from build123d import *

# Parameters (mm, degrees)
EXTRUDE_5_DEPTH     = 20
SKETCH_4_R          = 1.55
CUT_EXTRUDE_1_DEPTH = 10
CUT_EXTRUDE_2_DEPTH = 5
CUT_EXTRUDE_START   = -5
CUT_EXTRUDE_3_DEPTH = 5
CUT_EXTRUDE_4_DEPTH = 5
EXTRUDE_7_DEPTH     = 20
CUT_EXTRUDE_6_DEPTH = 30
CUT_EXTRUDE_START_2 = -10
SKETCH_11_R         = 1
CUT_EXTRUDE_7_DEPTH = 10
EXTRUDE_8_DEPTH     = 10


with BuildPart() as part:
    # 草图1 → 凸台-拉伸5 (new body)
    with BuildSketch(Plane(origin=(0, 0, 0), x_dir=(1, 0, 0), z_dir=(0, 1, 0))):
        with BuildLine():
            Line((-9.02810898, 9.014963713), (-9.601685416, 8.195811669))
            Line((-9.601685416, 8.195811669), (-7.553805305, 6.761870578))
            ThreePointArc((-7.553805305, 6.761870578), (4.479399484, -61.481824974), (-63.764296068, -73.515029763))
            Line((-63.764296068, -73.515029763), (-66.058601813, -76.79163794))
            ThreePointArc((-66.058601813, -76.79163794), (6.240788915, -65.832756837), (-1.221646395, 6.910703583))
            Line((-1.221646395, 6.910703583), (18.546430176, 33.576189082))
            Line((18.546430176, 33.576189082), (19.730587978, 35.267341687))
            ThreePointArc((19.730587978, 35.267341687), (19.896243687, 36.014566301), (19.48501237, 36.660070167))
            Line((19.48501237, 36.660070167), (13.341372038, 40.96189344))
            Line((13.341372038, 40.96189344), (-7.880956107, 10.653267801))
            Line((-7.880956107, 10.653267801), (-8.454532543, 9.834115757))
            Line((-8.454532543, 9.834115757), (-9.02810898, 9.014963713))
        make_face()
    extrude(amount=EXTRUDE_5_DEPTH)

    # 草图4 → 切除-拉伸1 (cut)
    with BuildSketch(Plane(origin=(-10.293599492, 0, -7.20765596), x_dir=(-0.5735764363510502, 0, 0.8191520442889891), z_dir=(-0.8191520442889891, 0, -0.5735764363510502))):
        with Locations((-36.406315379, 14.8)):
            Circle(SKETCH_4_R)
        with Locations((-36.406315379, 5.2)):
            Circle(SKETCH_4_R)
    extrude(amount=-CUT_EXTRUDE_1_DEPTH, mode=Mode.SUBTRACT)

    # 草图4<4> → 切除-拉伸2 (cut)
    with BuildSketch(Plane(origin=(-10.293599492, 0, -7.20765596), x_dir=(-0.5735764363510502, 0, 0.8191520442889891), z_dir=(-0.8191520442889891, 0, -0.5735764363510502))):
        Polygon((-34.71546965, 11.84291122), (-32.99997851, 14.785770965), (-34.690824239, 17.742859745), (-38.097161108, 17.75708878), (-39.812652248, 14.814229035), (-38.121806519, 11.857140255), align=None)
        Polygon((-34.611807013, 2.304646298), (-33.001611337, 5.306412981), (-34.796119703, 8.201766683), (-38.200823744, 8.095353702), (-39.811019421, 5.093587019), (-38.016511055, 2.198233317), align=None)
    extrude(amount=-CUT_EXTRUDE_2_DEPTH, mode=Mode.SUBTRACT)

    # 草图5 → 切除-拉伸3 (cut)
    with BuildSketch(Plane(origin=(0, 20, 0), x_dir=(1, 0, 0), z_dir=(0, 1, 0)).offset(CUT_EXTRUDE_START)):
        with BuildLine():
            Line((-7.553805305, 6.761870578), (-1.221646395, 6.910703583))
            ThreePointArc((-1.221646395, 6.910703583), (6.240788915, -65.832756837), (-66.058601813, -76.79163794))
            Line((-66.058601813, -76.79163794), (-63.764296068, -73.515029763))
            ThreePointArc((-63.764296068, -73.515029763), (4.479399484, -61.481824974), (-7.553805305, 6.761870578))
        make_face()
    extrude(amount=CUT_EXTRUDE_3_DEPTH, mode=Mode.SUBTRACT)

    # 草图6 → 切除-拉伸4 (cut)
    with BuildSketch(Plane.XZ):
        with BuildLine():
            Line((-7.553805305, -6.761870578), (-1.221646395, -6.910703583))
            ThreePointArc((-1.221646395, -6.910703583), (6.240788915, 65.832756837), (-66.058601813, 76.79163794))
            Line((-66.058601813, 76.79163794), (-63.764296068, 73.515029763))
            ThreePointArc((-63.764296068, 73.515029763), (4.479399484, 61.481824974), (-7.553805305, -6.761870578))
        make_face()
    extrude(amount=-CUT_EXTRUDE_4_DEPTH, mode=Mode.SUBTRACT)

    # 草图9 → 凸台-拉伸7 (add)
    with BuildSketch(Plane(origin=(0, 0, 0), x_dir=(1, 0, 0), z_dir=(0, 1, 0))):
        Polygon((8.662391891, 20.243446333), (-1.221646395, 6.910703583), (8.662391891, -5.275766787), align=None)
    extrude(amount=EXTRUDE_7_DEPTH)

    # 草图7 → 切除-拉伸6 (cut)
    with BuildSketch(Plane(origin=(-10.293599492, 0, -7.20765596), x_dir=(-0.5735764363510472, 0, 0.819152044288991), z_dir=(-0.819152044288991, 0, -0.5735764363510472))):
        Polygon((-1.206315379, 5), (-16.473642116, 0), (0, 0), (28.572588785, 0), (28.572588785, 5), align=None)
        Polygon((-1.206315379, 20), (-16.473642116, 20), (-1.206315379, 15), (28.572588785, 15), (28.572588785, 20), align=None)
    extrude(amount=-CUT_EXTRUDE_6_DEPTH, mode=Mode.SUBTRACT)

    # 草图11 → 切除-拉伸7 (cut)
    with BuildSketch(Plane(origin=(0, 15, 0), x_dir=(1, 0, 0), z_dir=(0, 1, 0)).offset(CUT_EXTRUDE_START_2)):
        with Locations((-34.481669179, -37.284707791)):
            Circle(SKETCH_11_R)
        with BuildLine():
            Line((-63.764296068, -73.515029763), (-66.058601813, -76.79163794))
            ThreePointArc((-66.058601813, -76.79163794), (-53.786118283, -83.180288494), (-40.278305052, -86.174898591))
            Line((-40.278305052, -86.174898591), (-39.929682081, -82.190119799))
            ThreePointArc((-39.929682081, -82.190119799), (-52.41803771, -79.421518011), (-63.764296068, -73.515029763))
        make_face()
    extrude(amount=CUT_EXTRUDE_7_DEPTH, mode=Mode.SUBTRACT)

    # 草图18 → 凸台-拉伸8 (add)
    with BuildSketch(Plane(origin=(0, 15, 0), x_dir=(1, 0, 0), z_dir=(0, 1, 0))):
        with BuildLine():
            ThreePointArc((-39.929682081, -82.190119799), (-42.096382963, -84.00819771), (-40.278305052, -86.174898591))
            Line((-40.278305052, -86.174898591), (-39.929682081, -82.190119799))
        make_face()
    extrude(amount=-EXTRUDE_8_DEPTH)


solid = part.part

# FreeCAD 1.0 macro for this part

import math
import FreeCAD as App
import Part
import Sketcher
Q = App.Units.Quantity


def add_polygon(sketch, points):
    """Adds a closed chain of lines whose ends are joined by coincident constraints."""
    first, n = sketch.GeometryCount, len(points)
    for a, b in zip(points, points[1:] + points[:1]):
        sketch.addGeometry(Part.LineSegment(App.Vector(*a, 0), App.Vector(*b, 0)), False)
    for i in range(n):
        sketch.addConstraint(Sketcher.Constraint("Coincident", first + i, 2, first + (i + 1) % n, 1))

doc = App.newDocument("Part")
body = doc.addObject("PartDesign::Body", "Body")

# Sketch on XZ plane
sketch1 = body.newObject("Sketcher::SketchObject", "Sketch")
sketch1.AttachmentSupport = (doc.getObject("XZ_Plane"), [""])
sketch1.MapMode = "FlatFace"
sketch1.addGeometry([
    Part.LineSegment(App.Vector(-9.028109, -9.014964, 0), App.Vector(-9.601685, -8.195812, 0)),  # 0
    Part.LineSegment(App.Vector(-9.601685, -8.195812, 0), App.Vector(-7.553805, -6.761871, 0)),  # 1
    Part.ArcOfCircle(Part.Circle(App.Vector(-35.659051, 33.37658, 0), App.Vector(0, 0, 1), 49), math.radians(-55), math.radians(125)),  # 2
    Part.LineSegment(App.Vector(-63.764296, 73.51503, 0), App.Vector(-66.058602, 76.791638, 0)),  # 3
    Part.ArcOfCircle(Part.Circle(App.Vector(-35.659051, 33.37658, 0), App.Vector(0, 0, 1), 53), math.radians(-49.476314), math.radians(125)),  # 4
    Part.LineSegment(App.Vector(-1.221646, -6.910704, 0), App.Vector(18.54643, -33.576189, 0)),  # 5
    Part.LineSegment(App.Vector(18.54643, -33.576189, 0), App.Vector(19.730588, -35.267342, 0)),  # 6
    Part.ArcOfCircle(Part.Circle(App.Vector(18.911436, -35.840918, 0), App.Vector(0, 0, 1), 1), math.radians(-55), math.radians(35)),  # 7
    Part.LineSegment(App.Vector(19.485012, -36.66007, 0), App.Vector(13.341372, -40.961893, 0)),  # 8
    Part.LineSegment(App.Vector(13.341372, -40.961893, 0), App.Vector(-7.880956, -10.653268, 0)),  # 9
    Part.LineSegment(App.Vector(-7.880956, -10.653268, 0), App.Vector(-8.454533, -9.834116, 0)),  # 10
    Part.LineSegment(App.Vector(-8.454533, -9.834116, 0), App.Vector(-9.028109, -9.014964, 0)),  # 11
], False)
sketch1.addConstraint([
    Sketcher.Constraint("Coincident", 0, 2, 1, 1),
    Sketcher.Constraint("Tangent", 1, 2, 2, 1),
    Sketcher.Constraint("Coincident", 2, 2, 3, 1),
    Sketcher.Constraint("Coincident", 3, 2, 4, 2),
    Sketcher.Constraint("Coincident", 4, 1, 5, 1),
    Sketcher.Constraint("Coincident", 5, 2, 6, 1),
    Sketcher.Constraint("Tangent", 6, 2, 7, 2),
    Sketcher.Constraint("Tangent", 7, 1, 8, 1),
    Sketcher.Constraint("Coincident", 8, 2, 9, 1),
    Sketcher.Constraint("Coincident", 9, 2, 10, 1),
    Sketcher.Constraint("Coincident", 10, 2, 11, 1),
    Sketcher.Constraint("Coincident", 11, 2, 0, 1),
    Sketcher.Constraint("Coincident", 4, 3, 2, 3),
    Sketcher.Constraint("Perpendicular", 0, 1),
    Sketcher.Constraint("Perpendicular", 1, 3),
    Sketcher.Constraint("Parallel", 3, 6),
    Sketcher.Constraint("Perpendicular", 6, 8),
    Sketcher.Constraint("Perpendicular", 8, 9),
    Sketcher.Constraint("Parallel", 9, 10),
    Sketcher.Constraint("Parallel", 10, 11),
    Sketcher.Constraint("Equal", 0, 10),
    Sketcher.Constraint("Equal", 10, 11),
    Sketcher.Constraint("Radius", 2, 49.0),
    Sketcher.Constraint("Radius", 4, 53.0),
    Sketcher.Constraint("Radius", 7, 1.0),
    Sketcher.Constraint("Angle", 0, Q("125 deg")),
    Sketcher.Constraint("Distance", 0, 1.0),
    Sketcher.Constraint("Distance", 9, 37.0),
    Sketcher.Constraint("Distance", 1, 2.5),
    Sketcher.Constraint("Distance", 8, 7.5),
    Sketcher.Constraint("DistanceX", 3, 2, -1, 1, 66.058602),
    Sketcher.Constraint("DistanceY", 1, 2, 2, 2, 80.2769),
    Sketcher.Constraint("Distance", 5, 33.193749),
    Sketcher.Constraint("DistanceY", -1, 1, 2, 3, 33.37658),
    Sketcher.Constraint("DistanceX", -1, 1, 5, 2, 18.54643),
])
pad1 = body.newObject("PartDesign::Pad", "Pad")
pad1.Profile = sketch1
pad1.Length = 20
pad1.Reversed = True

# Sketch on an angled plane
sketch2 = body.newObject("Sketcher::SketchObject", "Sketch001")
sketch2.Placement = App.Placement(App.Vector(-10.293599, 0, -7.207656), App.Rotation(App.Vector(-0.573576436, 0, 0.819152044), App.Vector(0, 0.999999999, 0), App.Vector(-0.819152044, 0, -0.573576436), "ZXY"))
sketch2.addGeometry([
    Part.Circle(App.Vector(-36.406315, 14.8, 0), App.Vector(0, 0, 1), 1.55),
    Part.Circle(App.Vector(-36.406315, 5.2, 0), App.Vector(0, 0, 1), 1.55),
], False)
sketch2.addConstraint([
    Sketcher.Constraint("Equal", 0, 1),
    Sketcher.Constraint("Vertical", 0, 3, 1, 3),
    Sketcher.Constraint("Diameter", 0, 3.1),
    Sketcher.Constraint("DistanceY", -1, 1, 0, 3, 14.8),
    Sketcher.Constraint("DistanceY", -1, 1, 1, 3, 5.2),
    Sketcher.Constraint("DistanceX", 0, 3, -1, 1, 36.406315),
])
pocket1 = body.newObject("PartDesign::Pocket", "Pocket")
pocket1.Profile = sketch2
pocket1.Length = 10

# Sketch on an angled plane
sketch3 = body.newObject("Sketcher::SketchObject", "Sketch002")
sketch3.Placement = App.Placement(App.Vector(-10.293599, 0, -7.207656), App.Rotation(App.Vector(-0.573576436, 0, 0.819152044), App.Vector(0, 0.999999999, 0), App.Vector(-0.819152044, 0, -0.573576436), "ZXY"))
add_polygon(sketch3, [(-34.71547, 11.842911), (-32.999978, 14.785771), (-34.690824, 17.74286), (-38.097161, 17.757089), (-39.812652, 14.814229), (-38.121806, 11.85714)])  # lines 0-5
add_polygon(sketch3, [(-34.611807, 2.304646), (-33.001611, 5.306413), (-34.79612, 8.201767), (-38.200824, 8.095354), (-39.811019, 5.093587), (-38.016511, 2.198233)])  # lines 6-11
sketch3.addConstraint([
    Sketcher.Constraint("Parallel", 0, 3),
    Sketcher.Constraint("Parallel", 1, 4),
    Sketcher.Constraint("Parallel", 2, 5),
    Sketcher.Constraint("Parallel", 6, 9),
    Sketcher.Constraint("Parallel", 7, 10),
    Sketcher.Constraint("Parallel", 8, 11),
    Sketcher.Constraint("Equal", 0, 1),
    Sketcher.Constraint("Equal", 1, 2),
    Sketcher.Constraint("Equal", 2, 3),
    Sketcher.Constraint("Equal", 5, 6),
    Sketcher.Constraint("Equal", 6, 7),
    Sketcher.Constraint("Equal", 7, 8),
    Sketcher.Constraint("Equal", 8, 9),
    Sketcher.Constraint("DistanceY", 6, 2, 5, 2, 6.536498),
    Sketcher.Constraint("DistanceX", 9, 2, 7, 2, 5.0149),
    Sketcher.Constraint("DistanceX", 0, 2, -1, 1, 32.999978),
    Sketcher.Constraint("DistanceY", -1, 1, 0, 2, 14.785771),
    Sketcher.Constraint("DistanceY", -1, 1, 1, 2, 17.74286),
    Sketcher.Constraint("DistanceX", 2, 2, -1, 1, 38.097161),
    Sketcher.Constraint("DistanceY", -1, 1, 2, 2, 17.757089),
    Sketcher.Constraint("DistanceY", -1, 1, 3, 2, 14.814229),
    Sketcher.Constraint("DistanceX", 6, 2, -1, 1, 33.001611),
    Sketcher.Constraint("DistanceX", 7, 2, -1, 1, 34.79612),
    Sketcher.Constraint("DistanceY", 6, 2, 8, 2, 2.788941),
])
pocket2 = body.newObject("PartDesign::Pocket", "Pocket001")
pocket2.Profile = sketch3
pocket2.Length = 5

# Sketch on XZ plane
sketch4 = body.newObject("Sketcher::SketchObject", "Sketch003")
sketch4.AttachmentSupport = (doc.getObject("XZ_Plane"), [""])
sketch4.MapMode = "FlatFace"
sketch4.AttachmentOffset = App.Placement(App.Vector(0, 0, -15), App.Rotation())
sketch4.addGeometry([
    Part.LineSegment(App.Vector(-1.221646, -6.910704, 0), App.Vector(-7.553805, -6.761871, 0)),
    Part.ArcOfCircle(Part.Circle(App.Vector(-35.659051, 33.37658, 0), App.Vector(0, 0, 1), 49), math.radians(-55), math.radians(125)),
    Part.LineSegment(App.Vector(-63.764296, 73.51503, 0), App.Vector(-66.058602, 76.791638, 0)),
    Part.ArcOfCircle(Part.Circle(App.Vector(-35.659051, 33.37658, 0), App.Vector(0, 0, 1), 53), math.radians(-49.476314), math.radians(125)),
], False)
sketch4.addConstraint([
    Sketcher.Constraint("Coincident", 0, 2, 1, 1),
    Sketcher.Constraint("Coincident", 1, 2, 2, 1),
    Sketcher.Constraint("Coincident", 2, 2, 3, 2),
    Sketcher.Constraint("Coincident", 3, 1, 0, 1),
    Sketcher.Constraint("Coincident", 3, 3, 1, 3),
    Sketcher.Constraint("Radius", 1, 49.0),
    Sketcher.Constraint("Radius", 3, 53.0),
    Sketcher.Constraint("Angle", 2, Q("125 deg")),
    Sketcher.Constraint("DistanceX", 2, 2, -1, 1, 66.058602),
    Sketcher.Constraint("DistanceY", 0, 2, 1, 2, 80.2769),
    Sketcher.Constraint("DistanceX", 1, 3, -1, 1, 35.659051),
    Sketcher.Constraint("DistanceY", -1, 1, 1, 3, 33.37658),
    Sketcher.Constraint("DistanceX", 0, 2, 3, 1, 6.332159),
])
pocket3 = body.newObject("PartDesign::Pocket", "Pocket002")
pocket3.Profile = sketch4
pocket3.Length = 5

# Sketch on XZ plane
sketch5 = body.newObject("Sketcher::SketchObject", "Sketch004")
sketch5.AttachmentSupport = (doc.getObject("XZ_Plane"), [""])
sketch5.MapMode = "FlatFace"
sketch5.addGeometry([
    Part.LineSegment(App.Vector(-7.553805, -6.761871, 0), App.Vector(-1.221646, -6.910704, 0)),
    Part.ArcOfCircle(Part.Circle(App.Vector(-35.659051, 33.37658, 0), App.Vector(0, 0, 1), 53), math.radians(-49.476314), math.radians(125)),
    Part.LineSegment(App.Vector(-66.058602, 76.791638, 0), App.Vector(-63.764296, 73.51503, 0)),
    Part.ArcOfCircle(Part.Circle(App.Vector(-35.659051, 33.37658, 0), App.Vector(0, 0, 1), 49), math.radians(-55), math.radians(125)),
], False)
sketch5.addConstraint([
    Sketcher.Constraint("Coincident", 0, 2, 1, 1),
    Sketcher.Constraint("Coincident", 1, 2, 2, 1),
    Sketcher.Constraint("Coincident", 2, 2, 3, 2),
    Sketcher.Constraint("Coincident", 3, 1, 0, 1),
    Sketcher.Constraint("Coincident", 3, 3, 1, 3),
    Sketcher.Constraint("Radius", 1, 53.0),
    Sketcher.Constraint("Radius", 3, 49.0),
    Sketcher.Constraint("Angle", 2, Q("-55 deg")),
    Sketcher.Constraint("DistanceX", 1, 2, -1, 1, 66.058602),
    Sketcher.Constraint("DistanceY", 3, 1, 2, 2, 80.2769),
    Sketcher.Constraint("DistanceX", 1, 3, -1, 1, 35.659051),
    Sketcher.Constraint("DistanceY", -1, 1, 1, 3, 33.37658),
    Sketcher.Constraint("DistanceY", 0, 2, 1, 2, 83.702342),
])
pocket4 = body.newObject("PartDesign::Pocket", "Pocket003")
pocket4.Profile = sketch5
pocket4.Length = 5

# Sketch on XZ plane
sketch6 = body.newObject("Sketcher::SketchObject", "Sketch005")
sketch6.AttachmentSupport = (doc.getObject("XZ_Plane"), [""])
sketch6.MapMode = "FlatFace"
add_polygon(sketch6, [(8.662392, -20.243446), (-1.221646, -6.910704), (8.662392, 5.275767)])  # lines 0-2
sketch6.addConstraint([
    Sketcher.Constraint("Vertical", 2),
    Sketcher.Constraint("DistanceY", 2, 2, 2, 1, 25.519213),
    Sketcher.Constraint("DistanceX", -1, 1, 1, 2, 8.662392),
    Sketcher.Constraint("DistanceX", 0, 2, 1, 2, 9.884038),
    Sketcher.Constraint("DistanceY", 0, 2, 1, 2, 12.18647),
    Sketcher.Constraint("DistanceY", 0, 2, -1, 1, 6.910704),
])
pad2 = body.newObject("PartDesign::Pad", "Pad001")
pad2.Profile = sketch6
pad2.Length = 20
pad2.Reversed = True

# Sketch on an angled plane
sketch7 = body.newObject("Sketcher::SketchObject", "Sketch006")
sketch7.Placement = App.Placement(App.Vector(-10.293599, 0, -7.207656), App.Rotation(App.Vector(-0.573576436, 0, 0.819152044), App.Vector(0, 0.999999999, 0), App.Vector(-0.819152044, 0, -0.573576436), "ZXY"))
add_polygon(sketch7, [(-1.206315, 5), (-16.473642, 0), (28.572589, 0), (28.572589, 5)])  # lines 0-3
add_polygon(sketch7, [(-16.473642, 20), (-1.206315, 15), (28.572589, 15), (28.572589, 20)])  # lines 4-7
sketch7.addConstraint([
    Sketcher.Constraint("Horizontal", 1),
    Sketcher.Constraint("Vertical", 2),
    Sketcher.Constraint("Horizontal", 3),
    Sketcher.Constraint("Horizontal", 5),
    Sketcher.Constraint("Vertical", 6),
    Sketcher.Constraint("Horizontal", 7),
    Sketcher.Constraint("PointOnObject", 0, 2, -1),
    Sketcher.Constraint("Vertical", 3, 2, 4, 2),
    Sketcher.Constraint("Vertical", 2, 2, 5, 2),
    Sketcher.Constraint("Vertical", 0, 2, 7, 2),
    Sketcher.Constraint("Equal", 2, 6),
    Sketcher.Constraint("DistanceY", 2, 1, 2, 2, 5.0),
    Sketcher.Constraint("DistanceY", -1, 1, 4, 2, 15.0),
    Sketcher.Constraint("DistanceX", 1, 1, 1, 2, 45.046231),
    Sketcher.Constraint("Distance", 0, 16.065219),
    Sketcher.Constraint("DistanceX", -1, 1, 1, 2, 28.572589),
])
pocket5 = body.newObject("PartDesign::Pocket", "Pocket004")
pocket5.Profile = sketch7
pocket5.Length = 30

# Sketch on XZ plane
sketch8 = body.newObject("Sketcher::SketchObject", "Sketch007")
sketch8.AttachmentSupport = (doc.getObject("XZ_Plane"), [""])
sketch8.MapMode = "FlatFace"
sketch8.AttachmentOffset = App.Placement(App.Vector(0, 0, -5), App.Rotation())
sketch8.addGeometry([
    Part.Circle(App.Vector(-34.481669, 37.284708, 0), App.Vector(0, 0, 1), 1),  # 0
    Part.LineSegment(App.Vector(-63.764296, 73.51503, 0), App.Vector(-66.058602, 76.791638, 0)),  # 1
    Part.ArcOfCircle(Part.Circle(App.Vector(-35.659051, 33.37658, 0), App.Vector(0, 0, 1), 53), math.radians(95), math.radians(125)),  # 2
    Part.LineSegment(App.Vector(-40.278305, 86.174899, 0), App.Vector(-39.929682, 82.19012, 0)),  # 3
    Part.ArcOfCircle(Part.Circle(App.Vector(-35.659051, 33.37658, 0), App.Vector(0, 0, 1), 49), math.radians(95), math.radians(125)),  # 4
], False)
sketch8.addConstraint([
    Sketcher.Constraint("Coincident", 1, 2, 2, 2),
    Sketcher.Constraint("Coincident", 2, 1, 3, 1),
    Sketcher.Constraint("Coincident", 3, 2, 4, 1),
    Sketcher.Constraint("Coincident", 4, 2, 1, 1),
    Sketcher.Constraint("Coincident", 4, 3, 2, 3),
    Sketcher.Constraint("Diameter", 0, 2.0),
    Sketcher.Constraint("Radius", 2, 53.0),
    Sketcher.Constraint("Radius", 4, 49.0),
    Sketcher.Constraint("Angle", 1, Q("125 deg")),
    Sketcher.Constraint("Angle", 3, Q("-85 deg")),
    Sketcher.Constraint("DistanceX", 1, 2, -1, 1, 66.058602),
    Sketcher.Constraint("DistanceY", -1, 1, 2, 1, 86.174899),
    Sketcher.Constraint("DistanceX", 0, 3, -1, 1, 34.481669),
    Sketcher.Constraint("DistanceX", 2, 3, -1, 1, 35.659051),
    Sketcher.Constraint("DistanceY", -1, 1, 2, 3, 33.37658),
    Sketcher.Constraint("DistanceY", 2, 3, 0, 3, 3.908128),
])
pocket6 = body.newObject("PartDesign::Pocket", "Pocket005")
pocket6.Profile = sketch8
pocket6.Length = 10

# Sketch on XZ plane
sketch9 = body.newObject("Sketcher::SketchObject", "Sketch008")
sketch9.AttachmentSupport = (doc.getObject("XZ_Plane"), [""])
sketch9.MapMode = "FlatFace"
sketch9.AttachmentOffset = App.Placement(App.Vector(0, 0, -15), App.Rotation())
sketch9.addGeometry([
    Part.ArcOfCircle(Part.Circle(App.Vector(-40.103994, 84.182509, 0), App.Vector(0, 0, 1), 2), math.radians(95), math.radians(275)),
    Part.LineSegment(App.Vector(-40.278305, 86.174899, 0), App.Vector(-39.929682, 82.19012, 0)),
], False)
sketch9.addConstraint([
    Sketcher.Constraint("Coincident", 0, 1, 1, 1),
    Sketcher.Constraint("Coincident", 1, 2, 0, 2),
    Sketcher.Constraint("Radius", 0, 2.0),
    Sketcher.Constraint("Angle", 1, Q("-85 deg")),
    Sketcher.Constraint("DistanceY", -1, 1, 0, 1, 86.174899),
    Sketcher.Constraint("DistanceY", -1, 1, 0, 3, 84.182509),
    Sketcher.Constraint("DistanceX", 0, 3, -1, 1, 40.103994),
])
pad3 = body.newObject("PartDesign::Pad", "Pad002")
pad3.Profile = sketch9
pad3.Length = 10

doc.recompute()
